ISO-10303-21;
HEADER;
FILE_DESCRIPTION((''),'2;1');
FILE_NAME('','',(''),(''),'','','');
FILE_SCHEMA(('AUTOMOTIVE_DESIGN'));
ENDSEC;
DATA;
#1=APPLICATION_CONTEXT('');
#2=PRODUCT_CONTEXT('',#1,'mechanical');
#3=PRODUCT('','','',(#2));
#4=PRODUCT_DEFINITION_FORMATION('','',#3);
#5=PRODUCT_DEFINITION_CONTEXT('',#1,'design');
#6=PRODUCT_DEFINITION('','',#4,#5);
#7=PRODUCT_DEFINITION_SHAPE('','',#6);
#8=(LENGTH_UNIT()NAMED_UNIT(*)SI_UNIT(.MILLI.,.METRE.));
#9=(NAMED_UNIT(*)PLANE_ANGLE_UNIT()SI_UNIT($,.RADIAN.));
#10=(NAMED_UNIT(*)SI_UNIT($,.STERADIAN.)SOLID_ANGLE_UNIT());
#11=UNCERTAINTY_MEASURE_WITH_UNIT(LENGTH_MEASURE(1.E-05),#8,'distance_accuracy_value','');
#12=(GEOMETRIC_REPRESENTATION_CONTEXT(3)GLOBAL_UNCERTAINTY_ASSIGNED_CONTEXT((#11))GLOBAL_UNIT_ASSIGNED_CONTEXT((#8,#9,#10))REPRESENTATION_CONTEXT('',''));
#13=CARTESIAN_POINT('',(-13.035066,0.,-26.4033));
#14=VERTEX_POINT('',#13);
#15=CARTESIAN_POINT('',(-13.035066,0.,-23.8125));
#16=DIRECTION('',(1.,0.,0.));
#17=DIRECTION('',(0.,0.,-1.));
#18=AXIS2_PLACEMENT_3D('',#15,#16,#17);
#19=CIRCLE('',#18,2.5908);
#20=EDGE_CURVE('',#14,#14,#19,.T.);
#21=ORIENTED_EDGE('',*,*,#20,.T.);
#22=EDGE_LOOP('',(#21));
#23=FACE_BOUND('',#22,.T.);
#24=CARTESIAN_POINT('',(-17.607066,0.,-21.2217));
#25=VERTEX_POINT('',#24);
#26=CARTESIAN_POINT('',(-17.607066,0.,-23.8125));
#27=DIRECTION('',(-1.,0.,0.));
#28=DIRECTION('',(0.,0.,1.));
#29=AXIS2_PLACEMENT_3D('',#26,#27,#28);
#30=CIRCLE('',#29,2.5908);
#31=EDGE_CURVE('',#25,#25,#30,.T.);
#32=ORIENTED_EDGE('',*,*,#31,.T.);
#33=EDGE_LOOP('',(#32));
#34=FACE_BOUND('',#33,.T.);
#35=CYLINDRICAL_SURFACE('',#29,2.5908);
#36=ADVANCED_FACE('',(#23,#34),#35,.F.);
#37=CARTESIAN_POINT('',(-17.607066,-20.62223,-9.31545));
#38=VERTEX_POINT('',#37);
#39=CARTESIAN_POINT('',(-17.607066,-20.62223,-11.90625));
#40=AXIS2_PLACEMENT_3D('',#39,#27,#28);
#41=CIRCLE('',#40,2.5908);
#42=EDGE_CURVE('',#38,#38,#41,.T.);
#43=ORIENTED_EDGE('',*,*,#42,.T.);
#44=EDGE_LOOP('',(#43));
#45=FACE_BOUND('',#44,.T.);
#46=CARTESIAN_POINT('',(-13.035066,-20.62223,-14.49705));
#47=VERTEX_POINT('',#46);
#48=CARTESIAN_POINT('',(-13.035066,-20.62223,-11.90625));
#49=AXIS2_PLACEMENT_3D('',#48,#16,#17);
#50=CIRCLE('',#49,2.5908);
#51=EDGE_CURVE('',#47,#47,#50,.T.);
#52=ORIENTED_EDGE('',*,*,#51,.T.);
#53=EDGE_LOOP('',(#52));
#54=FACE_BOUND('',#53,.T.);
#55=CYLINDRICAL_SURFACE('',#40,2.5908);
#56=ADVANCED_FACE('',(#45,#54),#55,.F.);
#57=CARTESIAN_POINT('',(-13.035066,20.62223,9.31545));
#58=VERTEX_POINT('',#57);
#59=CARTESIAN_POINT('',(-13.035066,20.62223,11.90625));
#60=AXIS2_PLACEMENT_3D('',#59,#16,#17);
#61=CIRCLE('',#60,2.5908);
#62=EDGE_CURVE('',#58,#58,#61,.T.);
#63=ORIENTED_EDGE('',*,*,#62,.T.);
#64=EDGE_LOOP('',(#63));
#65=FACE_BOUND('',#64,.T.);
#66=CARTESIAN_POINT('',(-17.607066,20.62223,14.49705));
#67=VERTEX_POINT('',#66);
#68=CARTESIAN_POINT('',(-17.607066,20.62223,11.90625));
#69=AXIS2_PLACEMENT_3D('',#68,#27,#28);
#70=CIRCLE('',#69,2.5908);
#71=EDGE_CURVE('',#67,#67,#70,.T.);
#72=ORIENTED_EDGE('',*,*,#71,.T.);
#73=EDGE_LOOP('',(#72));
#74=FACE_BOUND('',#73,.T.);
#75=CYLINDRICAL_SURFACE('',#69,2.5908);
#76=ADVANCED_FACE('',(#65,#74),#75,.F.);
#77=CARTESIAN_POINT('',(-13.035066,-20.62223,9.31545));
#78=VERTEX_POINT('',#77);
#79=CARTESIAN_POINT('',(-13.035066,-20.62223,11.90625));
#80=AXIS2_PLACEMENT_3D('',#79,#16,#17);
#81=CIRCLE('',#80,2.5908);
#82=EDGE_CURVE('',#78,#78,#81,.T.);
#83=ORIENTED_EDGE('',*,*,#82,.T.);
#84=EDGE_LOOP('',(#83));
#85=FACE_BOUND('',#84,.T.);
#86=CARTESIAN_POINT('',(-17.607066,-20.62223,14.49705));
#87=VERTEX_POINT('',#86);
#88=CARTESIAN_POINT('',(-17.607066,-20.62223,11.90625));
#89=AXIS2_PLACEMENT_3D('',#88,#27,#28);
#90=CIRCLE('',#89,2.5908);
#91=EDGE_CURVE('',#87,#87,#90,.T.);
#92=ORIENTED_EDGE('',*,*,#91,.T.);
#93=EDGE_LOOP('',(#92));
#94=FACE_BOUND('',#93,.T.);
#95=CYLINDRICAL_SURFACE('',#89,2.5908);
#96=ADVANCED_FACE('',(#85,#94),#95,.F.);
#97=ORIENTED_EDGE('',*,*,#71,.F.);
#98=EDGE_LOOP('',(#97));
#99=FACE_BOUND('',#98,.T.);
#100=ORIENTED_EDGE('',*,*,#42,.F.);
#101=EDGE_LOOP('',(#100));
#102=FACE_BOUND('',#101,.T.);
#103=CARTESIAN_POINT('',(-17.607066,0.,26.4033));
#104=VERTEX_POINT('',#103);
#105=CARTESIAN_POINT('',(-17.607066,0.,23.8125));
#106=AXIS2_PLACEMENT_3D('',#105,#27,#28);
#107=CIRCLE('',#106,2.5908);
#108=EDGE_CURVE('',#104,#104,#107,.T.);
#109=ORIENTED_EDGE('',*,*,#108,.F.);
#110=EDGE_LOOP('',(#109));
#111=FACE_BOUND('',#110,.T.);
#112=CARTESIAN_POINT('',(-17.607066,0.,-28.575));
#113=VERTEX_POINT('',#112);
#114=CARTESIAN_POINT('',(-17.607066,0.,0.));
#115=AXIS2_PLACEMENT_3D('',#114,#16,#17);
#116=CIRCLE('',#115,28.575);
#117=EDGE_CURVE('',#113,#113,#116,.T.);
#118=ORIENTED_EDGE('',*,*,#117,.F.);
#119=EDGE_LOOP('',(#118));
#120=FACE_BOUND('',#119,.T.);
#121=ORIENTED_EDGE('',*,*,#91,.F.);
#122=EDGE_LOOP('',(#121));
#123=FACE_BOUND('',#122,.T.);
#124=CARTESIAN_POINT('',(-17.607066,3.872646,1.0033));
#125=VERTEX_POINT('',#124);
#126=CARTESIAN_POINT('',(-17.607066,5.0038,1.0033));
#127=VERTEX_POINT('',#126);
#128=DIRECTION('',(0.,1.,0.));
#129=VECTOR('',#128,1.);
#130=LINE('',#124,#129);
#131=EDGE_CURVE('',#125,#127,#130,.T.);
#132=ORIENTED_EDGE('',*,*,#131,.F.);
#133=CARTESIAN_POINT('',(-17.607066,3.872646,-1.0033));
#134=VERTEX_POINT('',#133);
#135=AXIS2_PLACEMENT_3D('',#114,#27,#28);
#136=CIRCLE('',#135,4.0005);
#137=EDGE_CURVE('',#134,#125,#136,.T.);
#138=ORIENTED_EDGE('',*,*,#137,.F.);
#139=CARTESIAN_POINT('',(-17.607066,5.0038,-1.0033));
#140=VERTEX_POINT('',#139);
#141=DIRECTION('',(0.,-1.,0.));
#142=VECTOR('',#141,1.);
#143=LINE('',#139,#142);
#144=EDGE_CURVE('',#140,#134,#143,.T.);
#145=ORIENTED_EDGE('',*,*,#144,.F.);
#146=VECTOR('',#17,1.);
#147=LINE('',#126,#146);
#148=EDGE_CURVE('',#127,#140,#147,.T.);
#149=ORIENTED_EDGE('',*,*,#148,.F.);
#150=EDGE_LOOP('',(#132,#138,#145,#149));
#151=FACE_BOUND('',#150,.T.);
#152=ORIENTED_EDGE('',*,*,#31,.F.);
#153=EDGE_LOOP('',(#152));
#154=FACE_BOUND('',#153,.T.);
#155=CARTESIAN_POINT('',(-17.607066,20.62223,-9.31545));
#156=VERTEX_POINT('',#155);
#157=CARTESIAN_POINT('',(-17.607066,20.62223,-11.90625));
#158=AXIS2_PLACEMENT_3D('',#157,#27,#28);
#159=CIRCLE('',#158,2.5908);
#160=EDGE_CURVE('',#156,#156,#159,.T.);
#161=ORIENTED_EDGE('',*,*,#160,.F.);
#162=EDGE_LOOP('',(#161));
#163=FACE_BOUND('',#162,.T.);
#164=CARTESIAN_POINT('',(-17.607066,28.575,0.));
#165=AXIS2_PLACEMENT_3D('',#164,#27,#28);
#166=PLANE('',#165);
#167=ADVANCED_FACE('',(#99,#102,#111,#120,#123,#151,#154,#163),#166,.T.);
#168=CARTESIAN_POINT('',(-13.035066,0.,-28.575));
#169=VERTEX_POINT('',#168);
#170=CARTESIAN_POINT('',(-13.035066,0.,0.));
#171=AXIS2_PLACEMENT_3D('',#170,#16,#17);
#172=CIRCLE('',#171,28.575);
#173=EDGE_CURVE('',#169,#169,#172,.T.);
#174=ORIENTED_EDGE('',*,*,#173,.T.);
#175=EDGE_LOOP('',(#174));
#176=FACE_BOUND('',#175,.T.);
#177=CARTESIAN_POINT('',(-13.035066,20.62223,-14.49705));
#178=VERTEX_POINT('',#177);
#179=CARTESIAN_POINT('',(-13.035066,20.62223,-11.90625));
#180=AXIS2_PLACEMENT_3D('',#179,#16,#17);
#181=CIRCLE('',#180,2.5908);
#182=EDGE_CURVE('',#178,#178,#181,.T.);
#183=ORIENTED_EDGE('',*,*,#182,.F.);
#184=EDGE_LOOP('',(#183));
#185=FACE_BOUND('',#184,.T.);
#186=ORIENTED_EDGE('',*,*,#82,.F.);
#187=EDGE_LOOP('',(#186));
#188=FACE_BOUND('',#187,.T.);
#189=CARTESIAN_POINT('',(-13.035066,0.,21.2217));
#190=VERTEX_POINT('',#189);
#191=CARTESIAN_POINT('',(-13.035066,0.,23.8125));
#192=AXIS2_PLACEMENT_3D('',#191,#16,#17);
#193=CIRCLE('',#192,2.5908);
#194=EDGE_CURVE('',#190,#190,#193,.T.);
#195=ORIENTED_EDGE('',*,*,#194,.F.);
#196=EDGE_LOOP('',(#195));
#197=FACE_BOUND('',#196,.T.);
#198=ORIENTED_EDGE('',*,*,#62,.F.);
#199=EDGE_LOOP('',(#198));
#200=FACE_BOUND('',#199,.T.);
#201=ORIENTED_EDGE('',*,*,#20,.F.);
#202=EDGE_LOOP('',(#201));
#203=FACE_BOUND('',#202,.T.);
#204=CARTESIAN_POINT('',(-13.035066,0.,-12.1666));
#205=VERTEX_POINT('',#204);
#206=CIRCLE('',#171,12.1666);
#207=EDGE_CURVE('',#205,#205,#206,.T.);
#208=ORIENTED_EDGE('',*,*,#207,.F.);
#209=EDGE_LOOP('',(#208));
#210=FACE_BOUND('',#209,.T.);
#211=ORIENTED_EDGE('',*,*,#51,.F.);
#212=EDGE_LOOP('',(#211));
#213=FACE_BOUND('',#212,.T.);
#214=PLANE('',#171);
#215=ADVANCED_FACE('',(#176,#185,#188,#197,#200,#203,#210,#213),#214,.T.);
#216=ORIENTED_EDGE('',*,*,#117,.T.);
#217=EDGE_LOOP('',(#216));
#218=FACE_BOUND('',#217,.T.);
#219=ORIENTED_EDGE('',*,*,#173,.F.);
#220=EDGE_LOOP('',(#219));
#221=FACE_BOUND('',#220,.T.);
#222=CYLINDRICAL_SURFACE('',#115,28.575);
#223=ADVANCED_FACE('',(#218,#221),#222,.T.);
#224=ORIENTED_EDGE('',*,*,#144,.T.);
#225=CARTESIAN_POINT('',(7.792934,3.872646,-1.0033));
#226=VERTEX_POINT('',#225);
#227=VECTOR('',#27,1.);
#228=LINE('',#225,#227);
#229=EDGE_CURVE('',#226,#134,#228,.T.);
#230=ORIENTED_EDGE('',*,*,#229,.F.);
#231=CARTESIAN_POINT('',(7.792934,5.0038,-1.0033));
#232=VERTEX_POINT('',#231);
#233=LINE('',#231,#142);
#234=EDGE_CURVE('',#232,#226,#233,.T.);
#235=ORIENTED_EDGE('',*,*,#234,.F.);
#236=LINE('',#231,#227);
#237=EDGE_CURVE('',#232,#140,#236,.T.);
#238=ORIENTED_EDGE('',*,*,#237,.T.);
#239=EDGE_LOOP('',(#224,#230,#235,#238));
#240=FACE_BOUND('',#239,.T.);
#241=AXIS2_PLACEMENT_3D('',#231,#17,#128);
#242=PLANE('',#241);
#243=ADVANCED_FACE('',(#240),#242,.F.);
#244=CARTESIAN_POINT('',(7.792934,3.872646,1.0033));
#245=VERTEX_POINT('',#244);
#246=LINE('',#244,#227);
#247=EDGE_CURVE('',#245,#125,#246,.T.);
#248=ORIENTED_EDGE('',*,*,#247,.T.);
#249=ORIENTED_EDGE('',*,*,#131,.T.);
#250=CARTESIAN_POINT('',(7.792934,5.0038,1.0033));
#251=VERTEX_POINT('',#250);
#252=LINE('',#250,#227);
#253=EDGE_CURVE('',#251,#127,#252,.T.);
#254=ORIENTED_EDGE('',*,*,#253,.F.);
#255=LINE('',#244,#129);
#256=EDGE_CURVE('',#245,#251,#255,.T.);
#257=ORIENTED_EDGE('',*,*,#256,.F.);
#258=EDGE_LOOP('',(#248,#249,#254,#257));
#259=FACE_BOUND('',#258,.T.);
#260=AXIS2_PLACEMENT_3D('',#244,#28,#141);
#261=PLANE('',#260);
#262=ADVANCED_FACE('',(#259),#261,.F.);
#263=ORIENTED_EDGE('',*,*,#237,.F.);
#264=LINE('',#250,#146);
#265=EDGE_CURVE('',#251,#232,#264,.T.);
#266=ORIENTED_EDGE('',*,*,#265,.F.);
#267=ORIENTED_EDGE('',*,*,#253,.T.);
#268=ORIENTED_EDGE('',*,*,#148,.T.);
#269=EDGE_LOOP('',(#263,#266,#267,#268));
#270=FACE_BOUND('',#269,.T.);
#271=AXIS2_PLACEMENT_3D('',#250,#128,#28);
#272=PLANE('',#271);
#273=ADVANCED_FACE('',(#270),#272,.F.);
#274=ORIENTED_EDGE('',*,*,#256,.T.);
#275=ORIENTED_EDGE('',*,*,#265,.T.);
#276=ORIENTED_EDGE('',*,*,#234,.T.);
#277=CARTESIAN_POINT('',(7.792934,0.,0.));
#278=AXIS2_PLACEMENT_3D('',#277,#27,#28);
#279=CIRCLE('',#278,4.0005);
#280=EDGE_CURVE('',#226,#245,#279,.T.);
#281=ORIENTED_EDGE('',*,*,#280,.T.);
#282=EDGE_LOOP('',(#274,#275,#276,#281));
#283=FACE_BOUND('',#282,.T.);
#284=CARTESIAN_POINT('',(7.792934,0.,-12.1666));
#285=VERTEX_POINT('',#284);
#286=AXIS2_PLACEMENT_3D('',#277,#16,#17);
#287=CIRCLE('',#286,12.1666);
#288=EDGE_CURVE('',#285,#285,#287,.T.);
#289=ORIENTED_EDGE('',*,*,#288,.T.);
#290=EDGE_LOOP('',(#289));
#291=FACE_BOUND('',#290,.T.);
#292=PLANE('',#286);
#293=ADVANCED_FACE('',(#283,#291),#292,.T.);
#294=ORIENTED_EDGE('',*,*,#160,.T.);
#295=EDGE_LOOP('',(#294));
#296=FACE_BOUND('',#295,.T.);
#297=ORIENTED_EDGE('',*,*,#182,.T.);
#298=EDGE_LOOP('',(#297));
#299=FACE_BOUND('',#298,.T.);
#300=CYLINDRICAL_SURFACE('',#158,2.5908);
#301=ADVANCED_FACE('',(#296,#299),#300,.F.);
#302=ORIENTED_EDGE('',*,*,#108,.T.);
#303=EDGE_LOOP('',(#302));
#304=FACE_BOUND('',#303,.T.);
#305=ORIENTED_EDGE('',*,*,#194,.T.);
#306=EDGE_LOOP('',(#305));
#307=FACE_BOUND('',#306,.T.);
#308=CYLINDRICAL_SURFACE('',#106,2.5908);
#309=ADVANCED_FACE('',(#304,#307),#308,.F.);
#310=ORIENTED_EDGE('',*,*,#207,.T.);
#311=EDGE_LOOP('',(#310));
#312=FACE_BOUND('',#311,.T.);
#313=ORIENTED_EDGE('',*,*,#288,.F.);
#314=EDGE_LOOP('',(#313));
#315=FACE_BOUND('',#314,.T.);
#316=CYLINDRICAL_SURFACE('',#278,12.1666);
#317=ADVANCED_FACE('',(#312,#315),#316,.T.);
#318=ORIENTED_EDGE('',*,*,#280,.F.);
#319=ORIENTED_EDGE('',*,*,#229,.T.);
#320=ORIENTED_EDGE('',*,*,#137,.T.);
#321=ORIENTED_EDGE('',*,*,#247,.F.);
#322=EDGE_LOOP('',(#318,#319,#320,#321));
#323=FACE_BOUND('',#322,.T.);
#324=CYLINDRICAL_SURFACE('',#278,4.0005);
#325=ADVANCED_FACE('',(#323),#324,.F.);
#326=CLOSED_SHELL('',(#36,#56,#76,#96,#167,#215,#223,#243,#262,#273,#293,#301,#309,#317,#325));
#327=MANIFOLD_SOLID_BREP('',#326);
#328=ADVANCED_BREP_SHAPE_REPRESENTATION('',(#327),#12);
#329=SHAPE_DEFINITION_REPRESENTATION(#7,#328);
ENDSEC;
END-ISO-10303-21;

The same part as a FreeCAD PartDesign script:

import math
import FreeCAD as App
import Part
import Sketcher
from FreeCAD import Vector
Q = App.Units.Quantity


def add_polygon(sketch, points):
    """Adds a closed chain of lines whose ends are joined by coincident constraints."""
    first, n = sketch.GeometryCount, len(points)
    for a, b in zip(points, points[1:] + points[:1]):
        sketch.addGeometry(Part.LineSegment(App.Vector(*a, 0), App.Vector(*b, 0)), False)
    for i in range(n):
        sketch.addConstraint(Sketcher.Constraint("Coincident", first + i, 2, first + (i + 1) % n, 1))

doc = App.newDocument("Part")
body = doc.addObject("PartDesign::Body", "Body")

# Sketch on XY plane
sketch1 = doc.addObject("Sketcher::SketchObject", "Sketch")
body.addObject(sketch1)
sketch1.AttachmentSupport = (doc.XY_Plane, [""])
sketch1.MapMode = "FlatFace"
add_polygon(sketch1, [(-17.6, 28.6), (-17.6, 0), (-13, 0), (-13, 28.6)])  # lines 0-3
sketch1.addConstraint(Sketcher.Constraint("Vertical", 0))
sketch1.addConstraint(Sketcher.Constraint("Horizontal", 1))
sketch1.addConstraint(Sketcher.Constraint("Vertical", 2))
sketch1.addConstraint(Sketcher.Constraint("Horizontal", 3))
sketch1.addConstraint(Sketcher.Constraint("PointOnObject", 0, 2, -1))
sketch1.addConstraint(Sketcher.Constraint("DistanceX", 1, 1, 1, 2, Q("0.18 in")))
sketch1.addConstraint(Sketcher.Constraint("DistanceY", 0, 2, 0, 1, Q("1.125 in")))
sketch1.addConstraint(Sketcher.Constraint("DistanceX", 0, 2, -1, 1, 17.607066))
revolution = doc.addObject("PartDesign::Revolution", "Revolution")
body.addObject(revolution)
revolution.Profile = sketch1
revolution.ReferenceAxis = (sketch1, ["H_Axis"])
revolution.Angle = 360

# Sketch on YZ plane
sketch2 = doc.addObject("Sketcher::SketchObject", "Sketch001")
body.addObject(sketch2)
sketch2.AttachmentSupport = (doc.YZ_Plane, [""])
sketch2.MapMode = "FlatFace"
sketch2.AttachmentOffset = App.Placement(Vector(0, 0, -13.035066), App.Rotation())
sketch2.addGeometry(Part.Circle(Vector(0, 0, 0), Vector(0, 0, 1), 12), False)
sketch2.addConstraint(Sketcher.Constraint("Coincident", 0, 3, -1, 1))
sketch2.addConstraint(Sketcher.Constraint("Diameter", 0, Q("0.958 in")))
pad1 = doc.addObject("PartDesign::Pad", "Pad")
body.addObject(pad1)
pad1.Profile = sketch2
pad1.Length = Q("0.82 in")

# Sketch on YZ plane
sketch3 = doc.addObject("Sketcher::SketchObject", "Sketch002")
body.addObject(sketch3)
sketch3.AttachmentSupport = (doc.YZ_Plane, [""])
sketch3.MapMode = "FlatFace"
sketch3.AttachmentOffset = App.Placement(Vector(0, 0, -17.607066), App.Rotation())
sketch3.addGeometry(Part.LineSegment(Vector(3.9, 1, 0), Vector(5, 1, 0)), False)
sketch3.addGeometry(Part.LineSegment(Vector(5, 1, 0), Vector(5, -1, 0)), False)
sketch3.addGeometry(Part.LineSegment(Vector(5, -1, 0), Vector(3.9, -1, 0)), False)
sketch3.addGeometry(Part.ArcOfCircle(Part.Circle(Vector(0, 0, 0), Vector(0, 0, 1), 4), math.radians(-15), math.radians(15)), False)
sketch3.addConstraint(Sketcher.Constraint("Coincident", 0, 2, 1, 1))
sketch3.addConstraint(Sketcher.Constraint("Coincident", 1, 2, 2, 1))
sketch3.addConstraint(Sketcher.Constraint("Coincident", 2, 2, 3, 1))
sketch3.addConstraint(Sketcher.Constraint("Coincident", 3, 2, 0, 1))
sketch3.addConstraint(Sketcher.Constraint("Horizontal", 0))
sketch3.addConstraint(Sketcher.Constraint("Vertical", 1))
sketch3.addConstraint(Sketcher.Constraint("Horizontal", 2))
sketch3.addConstraint(Sketcher.Constraint("Coincident", 3, 3, -1, 1))
sketch3.addConstraint(Sketcher.Constraint("Vertical", 2, 2, 3, 2))
sketch3.addConstraint(Sketcher.Constraint("Radius", 3, Q("0.1575 in")))
sketch3.addConstraint(Sketcher.Constraint("DistanceY", 1, 2, 1, 1, Q("0.079 in")))
sketch3.addConstraint(Sketcher.Constraint("DistanceX", -1, 1, 0, 2, Q("0.197 in")))
pocket1 = doc.addObject("PartDesign::Pocket", "Pocket")
body.addObject(pocket1)
pocket1.Profile = sketch3
pocket1.Type = "ThroughAll"
pocket1.Reversed = True

# Sketch on XY plane
sketch4 = doc.addObject("Sketcher::SketchObject", "Sketch003")
body.addObject(sketch4)
sketch4.AttachmentSupport = (doc.XY_Plane, [""])
sketch4.MapMode = "FlatFace"
add_polygon(sketch4, [(7.8, 4), (7.8, 0), (-17.6, 0), (-17.6, 4)])  # lines 0-3
sketch4.addConstraint(Sketcher.Constraint("Vertical", 0))
sketch4.addConstraint(Sketcher.Constraint("Horizontal", 1))
sketch4.addConstraint(Sketcher.Constraint("Vertical", 2))
sketch4.addConstraint(Sketcher.Constraint("Horizontal", 3))
sketch4.addConstraint(Sketcher.Constraint("PointOnObject", 0, 2, -1))
sketch4.addConstraint(Sketcher.Constraint("DistanceX", 1, 2, 1, 1, Q("1 in")))
sketch4.addConstraint(Sketcher.Constraint("DistanceY", 0, 2, 0, 1, Q("0.1575 in")))
sketch4.addConstraint(Sketcher.Constraint("DistanceX", -1, 1, 0, 2, 7.792934))
groove = doc.addObject("PartDesign::Groove", "Groove")
body.addObject(groove)
groove.Profile = sketch4
groove.ReferenceAxis = (sketch4, ["H_Axis"])
groove.Angle = 360

# Sketch on YZ plane
sketch5 = doc.addObject("Sketcher::SketchObject", "Sketch004")
body.addObject(sketch5)
sketch5.AttachmentSupport = (doc.YZ_Plane, [""])
sketch5.MapMode = "FlatFace"
sketch5.AttachmentOffset = App.Placement(Vector(0, 0, -17.607066), App.Rotation())
sketch5.addGeometry(Part.Circle(Vector(0, 23.8, 0), Vector(0, 0, 1), 2.6), False)
sketch5.addGeometry(Part.Circle(Vector(20.6, 11.9, 0), Vector(0, 0, 1), 2.6), False)
sketch5.addGeometry(Part.Circle(Vector(20.6, -11.9, 0), Vector(0, 0, 1), 2.6), False)
sketch5.addGeometry(Part.Circle(Vector(0, -23.8, 0), Vector(0, 0, 1), 2.6), False)
sketch5.addGeometry(Part.Circle(Vector(-20.6, -11.9, 0), Vector(0, 0, 1), 2.6), False)
sketch5.addGeometry(Part.Circle(Vector(-20.6, 11.9, 0), Vector(0, 0, 1), 2.6), False)
sketch5.addConstraint(Sketcher.Constraint("Equal", 0, 1))
sketch5.addConstraint(Sketcher.Constraint("Equal", 1, 2))
sketch5.addConstraint(Sketcher.Constraint("Equal", 2, 3))
sketch5.addConstraint(Sketcher.Constraint("Equal", 3, 4))
sketch5.addConstraint(Sketcher.Constraint("Equal", 4, 5))
sketch5.addConstraint(Sketcher.Constraint("Symmetric", 0, 3, 3, 3, -1, 1))
sketch5.addConstraint(Sketcher.Constraint("Symmetric", 1, 3, 4, 3, -1, 1))
sketch5.addConstraint(Sketcher.Constraint("Symmetric", 2, 3, 5, 3, -1, 1))
sketch5.addConstraint(Sketcher.Constraint("Symmetric", 2, 3, 4, 3, -2))
sketch5.addConstraint(Sketcher.Constraint("PointOnObject", 0, 3, -2))
sketch5.addConstraint(Sketcher.Constraint("Diameter", 0, Q("0.204 in")))
sketch5.addConstraint(Sketcher.Constraint("DistanceY", -1, 1, 0, 3, Q("0.9375 in")))
sketch5.addConstraint(Sketcher.Constraint("DistanceY", -1, 1, 1, 3, Q("0.46875 in")))
sketch5.addConstraint(Sketcher.Constraint("DistanceX", -1, 1, 1, 3, 20.62223))
doc.recompute()
hole = doc.addObject("PartDesign::Hole", "Hole")
body.addObject(hole)
hole.Profile = sketch5
hole.ThreadType = "None"
hole.Diameter = Q("0.204 in")
hole.DepthType = "Dimension"
hole.Depth = Q("1 in")
hole.DrillPoint = "Flat"
hole.Reversed = True

doc.recompute()
